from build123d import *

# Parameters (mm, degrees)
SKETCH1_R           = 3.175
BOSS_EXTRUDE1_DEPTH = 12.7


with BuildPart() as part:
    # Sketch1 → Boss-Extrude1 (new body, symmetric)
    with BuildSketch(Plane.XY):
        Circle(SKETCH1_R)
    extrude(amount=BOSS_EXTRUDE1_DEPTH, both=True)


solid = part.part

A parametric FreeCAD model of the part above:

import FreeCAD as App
import Part
import Sketcher
from FreeCAD import Vector
Q = App.Units.Quantity

doc = App.newDocument("Part")
body = doc.addObject("PartDesign::Body", "Body")

# Sketch on XY plane
sketch1 = body.newObject("Sketcher::SketchObject", "Sketch")
sketch1.AttachmentSupport = (doc.getObject("XY_Plane"), [""])
sketch1.MapMode = "FlatFace"
sketch1.addGeometry(Part.Circle(Vector(0, 0, 0), Vector(0, 0, 1), 3.2), False)
sketch1.addConstraint([
    Sketcher.Constraint("Coincident", 0, 3, -1, 1),
    Sketcher.Constraint("Diameter", 0, Q("0.25 in")),
])
pad1 = body.newObject("PartDesign::Pad", "Pad")
pad1.Profile = sketch1
pad1.Length = Q("1 in")
pad1.Midplane = True

doc.recompute()
